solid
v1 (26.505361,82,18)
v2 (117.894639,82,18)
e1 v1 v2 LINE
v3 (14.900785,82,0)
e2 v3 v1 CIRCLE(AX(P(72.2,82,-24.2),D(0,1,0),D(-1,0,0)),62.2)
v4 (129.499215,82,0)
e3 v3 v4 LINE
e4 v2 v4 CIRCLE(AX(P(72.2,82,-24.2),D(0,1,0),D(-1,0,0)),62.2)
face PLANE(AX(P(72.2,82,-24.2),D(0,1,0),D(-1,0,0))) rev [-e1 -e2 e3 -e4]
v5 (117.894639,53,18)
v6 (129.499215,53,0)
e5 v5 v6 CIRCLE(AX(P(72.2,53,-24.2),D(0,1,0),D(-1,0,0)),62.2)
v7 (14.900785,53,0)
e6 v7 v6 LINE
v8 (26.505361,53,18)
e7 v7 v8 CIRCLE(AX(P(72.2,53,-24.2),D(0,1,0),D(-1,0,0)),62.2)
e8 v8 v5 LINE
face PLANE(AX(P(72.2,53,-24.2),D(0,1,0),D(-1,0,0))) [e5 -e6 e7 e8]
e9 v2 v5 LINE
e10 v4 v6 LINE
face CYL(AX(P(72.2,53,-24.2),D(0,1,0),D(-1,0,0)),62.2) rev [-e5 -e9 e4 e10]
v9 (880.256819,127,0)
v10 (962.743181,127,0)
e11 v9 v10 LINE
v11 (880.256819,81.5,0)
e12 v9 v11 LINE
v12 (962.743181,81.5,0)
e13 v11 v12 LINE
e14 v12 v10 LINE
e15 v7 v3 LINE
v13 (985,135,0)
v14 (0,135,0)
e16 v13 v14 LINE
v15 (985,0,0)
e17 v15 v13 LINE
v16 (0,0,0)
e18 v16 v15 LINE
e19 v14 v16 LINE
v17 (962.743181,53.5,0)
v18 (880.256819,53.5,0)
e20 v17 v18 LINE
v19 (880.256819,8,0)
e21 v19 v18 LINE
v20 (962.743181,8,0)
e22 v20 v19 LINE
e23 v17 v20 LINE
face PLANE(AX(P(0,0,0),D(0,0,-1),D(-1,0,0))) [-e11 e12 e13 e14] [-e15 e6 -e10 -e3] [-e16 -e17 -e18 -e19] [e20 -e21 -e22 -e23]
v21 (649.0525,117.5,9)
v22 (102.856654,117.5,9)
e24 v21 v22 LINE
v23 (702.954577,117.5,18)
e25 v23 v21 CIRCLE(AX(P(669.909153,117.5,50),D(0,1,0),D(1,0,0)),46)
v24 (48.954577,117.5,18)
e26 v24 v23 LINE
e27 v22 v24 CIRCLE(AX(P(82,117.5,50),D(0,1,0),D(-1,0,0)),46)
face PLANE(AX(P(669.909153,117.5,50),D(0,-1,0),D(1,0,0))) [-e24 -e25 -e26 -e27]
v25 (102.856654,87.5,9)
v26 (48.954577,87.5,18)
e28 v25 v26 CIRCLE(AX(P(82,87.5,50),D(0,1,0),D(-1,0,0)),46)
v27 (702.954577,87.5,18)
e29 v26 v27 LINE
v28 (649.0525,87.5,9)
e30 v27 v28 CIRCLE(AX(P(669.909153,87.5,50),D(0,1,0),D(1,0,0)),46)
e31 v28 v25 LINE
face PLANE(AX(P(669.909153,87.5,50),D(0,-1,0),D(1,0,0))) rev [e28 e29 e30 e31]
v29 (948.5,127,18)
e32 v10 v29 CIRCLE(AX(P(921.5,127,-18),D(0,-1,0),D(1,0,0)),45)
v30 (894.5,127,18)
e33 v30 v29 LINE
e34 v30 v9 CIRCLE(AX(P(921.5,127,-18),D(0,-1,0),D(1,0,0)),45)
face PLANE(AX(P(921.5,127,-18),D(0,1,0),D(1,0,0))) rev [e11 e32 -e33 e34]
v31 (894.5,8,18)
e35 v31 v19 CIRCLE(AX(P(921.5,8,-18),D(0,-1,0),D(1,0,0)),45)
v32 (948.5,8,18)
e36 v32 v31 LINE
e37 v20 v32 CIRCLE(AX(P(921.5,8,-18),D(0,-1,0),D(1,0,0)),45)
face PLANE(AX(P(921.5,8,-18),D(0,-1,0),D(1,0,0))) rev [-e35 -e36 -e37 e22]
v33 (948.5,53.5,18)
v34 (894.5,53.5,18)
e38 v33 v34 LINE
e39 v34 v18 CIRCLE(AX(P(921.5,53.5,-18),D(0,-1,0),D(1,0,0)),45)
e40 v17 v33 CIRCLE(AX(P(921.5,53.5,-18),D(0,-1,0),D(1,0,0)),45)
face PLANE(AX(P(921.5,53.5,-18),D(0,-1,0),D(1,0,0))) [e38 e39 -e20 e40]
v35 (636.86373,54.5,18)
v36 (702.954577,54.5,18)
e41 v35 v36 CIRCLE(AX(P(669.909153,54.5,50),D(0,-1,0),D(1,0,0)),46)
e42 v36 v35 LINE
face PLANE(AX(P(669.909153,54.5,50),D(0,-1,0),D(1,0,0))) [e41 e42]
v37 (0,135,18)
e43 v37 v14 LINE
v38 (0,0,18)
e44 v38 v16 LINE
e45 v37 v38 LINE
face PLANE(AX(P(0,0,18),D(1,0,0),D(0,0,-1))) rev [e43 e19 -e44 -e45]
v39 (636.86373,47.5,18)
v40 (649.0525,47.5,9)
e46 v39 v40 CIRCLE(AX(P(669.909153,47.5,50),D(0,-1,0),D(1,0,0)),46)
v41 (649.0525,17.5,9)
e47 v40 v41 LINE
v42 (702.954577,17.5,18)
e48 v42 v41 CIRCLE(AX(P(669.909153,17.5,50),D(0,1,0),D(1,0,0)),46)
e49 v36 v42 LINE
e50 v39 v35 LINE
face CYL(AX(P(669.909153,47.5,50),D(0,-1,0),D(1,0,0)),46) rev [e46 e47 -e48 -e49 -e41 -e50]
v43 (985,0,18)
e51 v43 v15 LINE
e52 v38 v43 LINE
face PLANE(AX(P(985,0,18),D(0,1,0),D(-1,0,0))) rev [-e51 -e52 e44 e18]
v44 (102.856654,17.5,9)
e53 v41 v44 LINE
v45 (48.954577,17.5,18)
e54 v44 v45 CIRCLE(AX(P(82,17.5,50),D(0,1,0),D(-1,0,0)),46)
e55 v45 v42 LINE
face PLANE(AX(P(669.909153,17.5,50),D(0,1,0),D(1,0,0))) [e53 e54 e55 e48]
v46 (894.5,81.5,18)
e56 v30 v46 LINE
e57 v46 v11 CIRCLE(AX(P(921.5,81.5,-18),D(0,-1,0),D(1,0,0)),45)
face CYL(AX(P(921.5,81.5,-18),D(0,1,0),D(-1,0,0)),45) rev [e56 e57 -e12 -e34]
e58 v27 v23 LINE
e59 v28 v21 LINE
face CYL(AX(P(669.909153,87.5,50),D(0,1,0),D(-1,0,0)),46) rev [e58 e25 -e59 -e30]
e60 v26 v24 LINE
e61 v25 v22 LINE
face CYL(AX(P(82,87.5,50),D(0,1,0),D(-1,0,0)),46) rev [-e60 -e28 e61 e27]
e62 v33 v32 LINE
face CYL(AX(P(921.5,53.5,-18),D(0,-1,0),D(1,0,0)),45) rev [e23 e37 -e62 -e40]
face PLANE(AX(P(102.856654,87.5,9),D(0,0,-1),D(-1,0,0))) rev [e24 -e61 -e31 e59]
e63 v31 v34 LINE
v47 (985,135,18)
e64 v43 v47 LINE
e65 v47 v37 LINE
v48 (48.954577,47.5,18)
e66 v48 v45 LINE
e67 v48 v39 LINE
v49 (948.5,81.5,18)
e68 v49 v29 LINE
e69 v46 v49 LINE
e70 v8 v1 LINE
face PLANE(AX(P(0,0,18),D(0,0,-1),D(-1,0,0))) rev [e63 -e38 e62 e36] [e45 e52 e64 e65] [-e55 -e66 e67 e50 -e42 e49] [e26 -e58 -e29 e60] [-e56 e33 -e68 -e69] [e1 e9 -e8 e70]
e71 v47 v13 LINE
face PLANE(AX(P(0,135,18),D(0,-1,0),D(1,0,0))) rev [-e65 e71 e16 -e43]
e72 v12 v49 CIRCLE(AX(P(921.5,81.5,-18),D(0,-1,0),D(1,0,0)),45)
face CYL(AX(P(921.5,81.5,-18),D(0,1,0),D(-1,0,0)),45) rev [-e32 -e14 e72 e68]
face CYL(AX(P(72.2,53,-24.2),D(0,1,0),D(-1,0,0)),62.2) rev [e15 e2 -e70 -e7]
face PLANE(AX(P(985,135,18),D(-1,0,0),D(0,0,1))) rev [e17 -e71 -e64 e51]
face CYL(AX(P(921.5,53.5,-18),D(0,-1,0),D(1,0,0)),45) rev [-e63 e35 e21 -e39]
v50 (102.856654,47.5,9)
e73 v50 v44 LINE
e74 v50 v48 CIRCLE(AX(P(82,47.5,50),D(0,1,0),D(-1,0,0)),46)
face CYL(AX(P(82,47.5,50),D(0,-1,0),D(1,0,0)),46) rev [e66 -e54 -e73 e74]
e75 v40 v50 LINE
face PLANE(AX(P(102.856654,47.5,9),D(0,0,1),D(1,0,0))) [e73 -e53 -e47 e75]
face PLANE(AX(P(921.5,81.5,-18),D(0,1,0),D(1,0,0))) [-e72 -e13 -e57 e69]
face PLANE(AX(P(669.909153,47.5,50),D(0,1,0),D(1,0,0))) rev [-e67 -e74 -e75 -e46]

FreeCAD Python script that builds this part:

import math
import FreeCAD as App
import Part
import Sketcher

V = App.Vector

doc = App.newDocument("Part")
params = doc.addObject("Spreadsheet::Sheet", "Params")
for row, (alias, value) in enumerate([
    ("sketch1_width", "985 mm"),
    ("sketch1_height", "135 mm"),
    ("pad1_length", "18 mm"),
    ("sketch2_diameter", "90 mm"),
    ("pocket1_length", "45.5 mm"),
    ("sketch3_diameter", "124.4 mm"),
    ("pocket2_length", "29 mm"),
    ("sketch4_radius", "46 mm"),
    ("sketch4_width", "654 mm"),
    ("pocket3_length", "30 mm"),
    ("sketch5_diameter", "92 mm"),
    ("pocket4_length", "7 mm"),
], start=1):
    params.set(f"A{row}", alias)
    params.set(f"B{row}", "=" + value)
    params.setAlias(f"B{row}", alias)

body = doc.addObject("PartDesign::Body", "Body")

# Sketch on XY plane
sketch1 = body.newObject("Sketcher::SketchObject", "Sketch")
sketch1.AttachmentSupport = (doc.getObject("XY_Plane"), [""])
sketch1.MapMode = "FlatFace"
sketch1.addGeometry(Part.LineSegment(V(0, 135, 0), V(0, 0, 0)), False)
sketch1.addGeometry(Part.LineSegment(V(0, 0, 0), V(985, 0, 0)), False)
sketch1.addGeometry(Part.LineSegment(V(985, 0, 0), V(985, 135, 0)), False)
sketch1.addGeometry(Part.LineSegment(V(985, 135, 0), V(0, 135, 0)), False)
sketch1.addConstraint(Sketcher.Constraint("Coincident", 0, 2, 1, 1))
sketch1.addConstraint(Sketcher.Constraint("Coincident", 1, 2, 2, 1))
sketch1.addConstraint(Sketcher.Constraint("Coincident", 2, 2, 3, 1))
sketch1.addConstraint(Sketcher.Constraint("Coincident", 3, 2, 0, 1))
sketch1.addConstraint(Sketcher.Constraint("Vertical", 0))
sketch1.addConstraint(Sketcher.Constraint("Horizontal", 1))
sketch1.addConstraint(Sketcher.Constraint("Vertical", 2))
sketch1.addConstraint(Sketcher.Constraint("Horizontal", 3))
sketch1.addConstraint(Sketcher.Constraint("Coincident", 0, 2, -1, 1))
sketch1.addConstraint(Sketcher.Constraint("DistanceX", 1, 1, 1, 2, 985.0))
sketch1.addConstraint(Sketcher.Constraint("DistanceY", 0, 2, 0, 1, 135.0))
sketch1.setExpression("Constraints[9]", "Params.sketch1_width")
sketch1.setExpression("Constraints[10]", "Params.sketch1_height")
pad1 = body.newObject("PartDesign::Pad", "Pad")
pad1.Profile = sketch1
pad1.setExpression("Length", "Params.pad1_length")

# Sketch on XZ plane
sketch2 = body.newObject("Sketcher::SketchObject", "Sketch001")
sketch2.AttachmentSupport = (doc.getObject("XZ_Plane"), [""])
sketch2.MapMode = "FlatFace"
sketch2.AttachmentOffset = App.Placement(V(0, 0, -8), App.Rotation())
sketch2.addGeometry(Part.Circle(V(921.5, -18, 0), V(0, 0, 1), 45), False)
sketch2.addConstraint(Sketcher.Constraint("Diameter", 0, 90.0))
sketch2.addConstraint(Sketcher.Constraint("DistanceY", 0, 3, -1, 1, 18.0))
sketch2.addConstraint(Sketcher.Constraint("DistanceX", -1, 1, 0, 3, 921.5))
sketch2.setExpression("Constraints[0]", "Params.sketch2_diameter")
pocket1 = body.newObject("PartDesign::Pocket", "Pocket")
pocket1.Profile = sketch2
pocket1.setExpression("Length", "Params.pocket1_length")
doc.recompute()

datumplane = body.newObject("PartDesign::Plane", "DatumPlane")
datumplane.AttachmentSupport = (doc.getObject("XZ_Plane"), [""])
datumplane.MapMode = "FlatFace"
datumplane.AttachmentOffset = App.Placement(V(0, 0, -67.5), App.Rotation())
mirrored = body.newObject("PartDesign::Mirrored", "Mirrored")
mirrored.Originals = [pocket1]
mirrored.MirrorPlane = (datumplane, [""])
body.Tip = mirrored

# Sketch on XZ plane
sketch3 = body.newObject("Sketcher::SketchObject", "Sketch002")
sketch3.AttachmentSupport = (doc.getObject("XZ_Plane"), [""])
sketch3.MapMode = "FlatFace"
sketch3.AttachmentOffset = App.Placement(V(0, 0, -67.5), App.Rotation())
sketch3.addGeometry(Part.Circle(V(72.2, -24.2, 0), V(0, 0, 1), 62.2), False)
sketch3.addConstraint(Sketcher.Constraint("Diameter", 0, 124.4))
sketch3.addConstraint(Sketcher.Constraint("DistanceX", -1, 1, 0, 3, 72.2))
sketch3.addConstraint(Sketcher.Constraint("DistanceY", 0, 3, -1, 1, 24.2))
sketch3.setExpression("Constraints[0]", "Params.sketch3_diameter")
pocket2 = body.newObject("PartDesign::Pocket", "Pocket001")
pocket2.Profile = sketch3
pocket2.setExpression("Length", "Params.pocket2_length")
pocket2.Midplane = True

# Sketch on XZ plane
sketch4 = body.newObject("Sketcher::SketchObject", "Sketch003")
sketch4.AttachmentSupport = (doc.getObject("XZ_Plane"), [""])
sketch4.MapMode = "FlatFace"
sketch4.AttachmentOffset = App.Placement(V(0, 0, -102.5), App.Rotation())
sketch4.addGeometry(Part.LineSegment(V(649.0525, 9, 0), V(102.856654, 9, 0)), False)
sketch4.addGeometry(Part.ArcOfCircle(Part.Circle(V(82, 50, 0), V(0, 0, 1), 46), math.radians(-135.92079), math.radians(-63.037611)), False)
sketch4.addGeometry(Part.LineSegment(V(48.954577, 18, 0), V(702.954577, 18, 0)), False)
sketch4.addGeometry(Part.ArcOfCircle(Part.Circle(V(669.909153, 50, 0), V(0, 0, 1), 46), math.radians(-116.962389), math.radians(-44.07921)), False)
sketch4.addConstraint(Sketcher.Constraint("Coincident", 0, 2, 1, 2))
sketch4.addConstraint(Sketcher.Constraint("Coincident", 1, 1, 2, 1))
sketch4.addConstraint(Sketcher.Constraint("Coincident", 2, 2, 3, 2))
sketch4.addConstraint(Sketcher.Constraint("Coincident", 3, 1, 0, 1))
sketch4.addConstraint(Sketcher.Constraint("Horizontal", 0))
sketch4.addConstraint(Sketcher.Constraint("Horizontal", 2))
sketch4.addConstraint(Sketcher.Constraint("Equal", 1, 3))
sketch4.addConstraint(Sketcher.Constraint("Horizontal", 1, 3, 3, 3))
sketch4.addConstraint(Sketcher.Constraint("Radius", 1, 46.0))
sketch4.addConstraint(Sketcher.Constraint("DistanceX", 2, 1, 2, 2, 654.0))
sketch4.addConstraint(Sketcher.Constraint("DistanceX", -1, 1, 1, 3, 82.0))
sketch4.addConstraint(Sketcher.Constraint("DistanceY", -1, 1, 1, 3, 50.0))
sketch4.addConstraint(Sketcher.Constraint("DistanceY", -1, 1, 0, 2, 9.0))
sketch4.addConstraint(Sketcher.Constraint("DistanceY", -1, 1, 1, 1, 18.0))
sketch4.setExpression("Constraints[8]", "Params.sketch4_radius")
sketch4.setExpression("Constraints[9]", "Params.sketch4_width")
pocket3 = body.newObject("PartDesign::Pocket", "Pocket002")
pocket3.Profile = sketch4
pocket3.setExpression("Length", "Params.pocket3_length")
pocket3.Midplane = True
doc.recompute()

datumplane2 = body.newObject("PartDesign::Plane", "DatumPlane001")
datumplane2.AttachmentSupport = (doc.getObject("XZ_Plane"), [""])
datumplane2.MapMode = "FlatFace"
datumplane2.AttachmentOffset = App.Placement(V(0, 0, -67.5), App.Rotation())
mirrored2 = body.newObject("PartDesign::Mirrored", "Mirrored001")
mirrored2.Originals = [pocket3]
mirrored2.MirrorPlane = (datumplane2, [""])
body.Tip = mirrored2

# Sketch on XZ plane
sketch5 = body.newObject("Sketcher::SketchObject", "Sketch004")
sketch5.AttachmentSupport = (doc.getObject("XZ_Plane"), [""])
sketch5.MapMode = "FlatFace"
sketch5.AttachmentOffset = App.Placement(V(0, 0, -47.5), App.Rotation())
sketch5.addGeometry(Part.Circle(V(669.909153, 50, 0), V(0, 0, 1), 46), False)
sketch5.addConstraint(Sketcher.Constraint("Diameter", 0, 92.0))
sketch5.addConstraint(Sketcher.Constraint("DistanceY", -1, 1, 0, 3, 50.0))
sketch5.addConstraint(Sketcher.Constraint("DistanceX", -1, 1, 0, 3, 669.909153))
sketch5.setExpression("Constraints[0]", "Params.sketch5_diameter")
pocket4 = body.newObject("PartDesign::Pocket", "Pocket003")
pocket4.Profile = sketch5
pocket4.setExpression("Length", "Params.pocket4_length")

doc.recompute()
